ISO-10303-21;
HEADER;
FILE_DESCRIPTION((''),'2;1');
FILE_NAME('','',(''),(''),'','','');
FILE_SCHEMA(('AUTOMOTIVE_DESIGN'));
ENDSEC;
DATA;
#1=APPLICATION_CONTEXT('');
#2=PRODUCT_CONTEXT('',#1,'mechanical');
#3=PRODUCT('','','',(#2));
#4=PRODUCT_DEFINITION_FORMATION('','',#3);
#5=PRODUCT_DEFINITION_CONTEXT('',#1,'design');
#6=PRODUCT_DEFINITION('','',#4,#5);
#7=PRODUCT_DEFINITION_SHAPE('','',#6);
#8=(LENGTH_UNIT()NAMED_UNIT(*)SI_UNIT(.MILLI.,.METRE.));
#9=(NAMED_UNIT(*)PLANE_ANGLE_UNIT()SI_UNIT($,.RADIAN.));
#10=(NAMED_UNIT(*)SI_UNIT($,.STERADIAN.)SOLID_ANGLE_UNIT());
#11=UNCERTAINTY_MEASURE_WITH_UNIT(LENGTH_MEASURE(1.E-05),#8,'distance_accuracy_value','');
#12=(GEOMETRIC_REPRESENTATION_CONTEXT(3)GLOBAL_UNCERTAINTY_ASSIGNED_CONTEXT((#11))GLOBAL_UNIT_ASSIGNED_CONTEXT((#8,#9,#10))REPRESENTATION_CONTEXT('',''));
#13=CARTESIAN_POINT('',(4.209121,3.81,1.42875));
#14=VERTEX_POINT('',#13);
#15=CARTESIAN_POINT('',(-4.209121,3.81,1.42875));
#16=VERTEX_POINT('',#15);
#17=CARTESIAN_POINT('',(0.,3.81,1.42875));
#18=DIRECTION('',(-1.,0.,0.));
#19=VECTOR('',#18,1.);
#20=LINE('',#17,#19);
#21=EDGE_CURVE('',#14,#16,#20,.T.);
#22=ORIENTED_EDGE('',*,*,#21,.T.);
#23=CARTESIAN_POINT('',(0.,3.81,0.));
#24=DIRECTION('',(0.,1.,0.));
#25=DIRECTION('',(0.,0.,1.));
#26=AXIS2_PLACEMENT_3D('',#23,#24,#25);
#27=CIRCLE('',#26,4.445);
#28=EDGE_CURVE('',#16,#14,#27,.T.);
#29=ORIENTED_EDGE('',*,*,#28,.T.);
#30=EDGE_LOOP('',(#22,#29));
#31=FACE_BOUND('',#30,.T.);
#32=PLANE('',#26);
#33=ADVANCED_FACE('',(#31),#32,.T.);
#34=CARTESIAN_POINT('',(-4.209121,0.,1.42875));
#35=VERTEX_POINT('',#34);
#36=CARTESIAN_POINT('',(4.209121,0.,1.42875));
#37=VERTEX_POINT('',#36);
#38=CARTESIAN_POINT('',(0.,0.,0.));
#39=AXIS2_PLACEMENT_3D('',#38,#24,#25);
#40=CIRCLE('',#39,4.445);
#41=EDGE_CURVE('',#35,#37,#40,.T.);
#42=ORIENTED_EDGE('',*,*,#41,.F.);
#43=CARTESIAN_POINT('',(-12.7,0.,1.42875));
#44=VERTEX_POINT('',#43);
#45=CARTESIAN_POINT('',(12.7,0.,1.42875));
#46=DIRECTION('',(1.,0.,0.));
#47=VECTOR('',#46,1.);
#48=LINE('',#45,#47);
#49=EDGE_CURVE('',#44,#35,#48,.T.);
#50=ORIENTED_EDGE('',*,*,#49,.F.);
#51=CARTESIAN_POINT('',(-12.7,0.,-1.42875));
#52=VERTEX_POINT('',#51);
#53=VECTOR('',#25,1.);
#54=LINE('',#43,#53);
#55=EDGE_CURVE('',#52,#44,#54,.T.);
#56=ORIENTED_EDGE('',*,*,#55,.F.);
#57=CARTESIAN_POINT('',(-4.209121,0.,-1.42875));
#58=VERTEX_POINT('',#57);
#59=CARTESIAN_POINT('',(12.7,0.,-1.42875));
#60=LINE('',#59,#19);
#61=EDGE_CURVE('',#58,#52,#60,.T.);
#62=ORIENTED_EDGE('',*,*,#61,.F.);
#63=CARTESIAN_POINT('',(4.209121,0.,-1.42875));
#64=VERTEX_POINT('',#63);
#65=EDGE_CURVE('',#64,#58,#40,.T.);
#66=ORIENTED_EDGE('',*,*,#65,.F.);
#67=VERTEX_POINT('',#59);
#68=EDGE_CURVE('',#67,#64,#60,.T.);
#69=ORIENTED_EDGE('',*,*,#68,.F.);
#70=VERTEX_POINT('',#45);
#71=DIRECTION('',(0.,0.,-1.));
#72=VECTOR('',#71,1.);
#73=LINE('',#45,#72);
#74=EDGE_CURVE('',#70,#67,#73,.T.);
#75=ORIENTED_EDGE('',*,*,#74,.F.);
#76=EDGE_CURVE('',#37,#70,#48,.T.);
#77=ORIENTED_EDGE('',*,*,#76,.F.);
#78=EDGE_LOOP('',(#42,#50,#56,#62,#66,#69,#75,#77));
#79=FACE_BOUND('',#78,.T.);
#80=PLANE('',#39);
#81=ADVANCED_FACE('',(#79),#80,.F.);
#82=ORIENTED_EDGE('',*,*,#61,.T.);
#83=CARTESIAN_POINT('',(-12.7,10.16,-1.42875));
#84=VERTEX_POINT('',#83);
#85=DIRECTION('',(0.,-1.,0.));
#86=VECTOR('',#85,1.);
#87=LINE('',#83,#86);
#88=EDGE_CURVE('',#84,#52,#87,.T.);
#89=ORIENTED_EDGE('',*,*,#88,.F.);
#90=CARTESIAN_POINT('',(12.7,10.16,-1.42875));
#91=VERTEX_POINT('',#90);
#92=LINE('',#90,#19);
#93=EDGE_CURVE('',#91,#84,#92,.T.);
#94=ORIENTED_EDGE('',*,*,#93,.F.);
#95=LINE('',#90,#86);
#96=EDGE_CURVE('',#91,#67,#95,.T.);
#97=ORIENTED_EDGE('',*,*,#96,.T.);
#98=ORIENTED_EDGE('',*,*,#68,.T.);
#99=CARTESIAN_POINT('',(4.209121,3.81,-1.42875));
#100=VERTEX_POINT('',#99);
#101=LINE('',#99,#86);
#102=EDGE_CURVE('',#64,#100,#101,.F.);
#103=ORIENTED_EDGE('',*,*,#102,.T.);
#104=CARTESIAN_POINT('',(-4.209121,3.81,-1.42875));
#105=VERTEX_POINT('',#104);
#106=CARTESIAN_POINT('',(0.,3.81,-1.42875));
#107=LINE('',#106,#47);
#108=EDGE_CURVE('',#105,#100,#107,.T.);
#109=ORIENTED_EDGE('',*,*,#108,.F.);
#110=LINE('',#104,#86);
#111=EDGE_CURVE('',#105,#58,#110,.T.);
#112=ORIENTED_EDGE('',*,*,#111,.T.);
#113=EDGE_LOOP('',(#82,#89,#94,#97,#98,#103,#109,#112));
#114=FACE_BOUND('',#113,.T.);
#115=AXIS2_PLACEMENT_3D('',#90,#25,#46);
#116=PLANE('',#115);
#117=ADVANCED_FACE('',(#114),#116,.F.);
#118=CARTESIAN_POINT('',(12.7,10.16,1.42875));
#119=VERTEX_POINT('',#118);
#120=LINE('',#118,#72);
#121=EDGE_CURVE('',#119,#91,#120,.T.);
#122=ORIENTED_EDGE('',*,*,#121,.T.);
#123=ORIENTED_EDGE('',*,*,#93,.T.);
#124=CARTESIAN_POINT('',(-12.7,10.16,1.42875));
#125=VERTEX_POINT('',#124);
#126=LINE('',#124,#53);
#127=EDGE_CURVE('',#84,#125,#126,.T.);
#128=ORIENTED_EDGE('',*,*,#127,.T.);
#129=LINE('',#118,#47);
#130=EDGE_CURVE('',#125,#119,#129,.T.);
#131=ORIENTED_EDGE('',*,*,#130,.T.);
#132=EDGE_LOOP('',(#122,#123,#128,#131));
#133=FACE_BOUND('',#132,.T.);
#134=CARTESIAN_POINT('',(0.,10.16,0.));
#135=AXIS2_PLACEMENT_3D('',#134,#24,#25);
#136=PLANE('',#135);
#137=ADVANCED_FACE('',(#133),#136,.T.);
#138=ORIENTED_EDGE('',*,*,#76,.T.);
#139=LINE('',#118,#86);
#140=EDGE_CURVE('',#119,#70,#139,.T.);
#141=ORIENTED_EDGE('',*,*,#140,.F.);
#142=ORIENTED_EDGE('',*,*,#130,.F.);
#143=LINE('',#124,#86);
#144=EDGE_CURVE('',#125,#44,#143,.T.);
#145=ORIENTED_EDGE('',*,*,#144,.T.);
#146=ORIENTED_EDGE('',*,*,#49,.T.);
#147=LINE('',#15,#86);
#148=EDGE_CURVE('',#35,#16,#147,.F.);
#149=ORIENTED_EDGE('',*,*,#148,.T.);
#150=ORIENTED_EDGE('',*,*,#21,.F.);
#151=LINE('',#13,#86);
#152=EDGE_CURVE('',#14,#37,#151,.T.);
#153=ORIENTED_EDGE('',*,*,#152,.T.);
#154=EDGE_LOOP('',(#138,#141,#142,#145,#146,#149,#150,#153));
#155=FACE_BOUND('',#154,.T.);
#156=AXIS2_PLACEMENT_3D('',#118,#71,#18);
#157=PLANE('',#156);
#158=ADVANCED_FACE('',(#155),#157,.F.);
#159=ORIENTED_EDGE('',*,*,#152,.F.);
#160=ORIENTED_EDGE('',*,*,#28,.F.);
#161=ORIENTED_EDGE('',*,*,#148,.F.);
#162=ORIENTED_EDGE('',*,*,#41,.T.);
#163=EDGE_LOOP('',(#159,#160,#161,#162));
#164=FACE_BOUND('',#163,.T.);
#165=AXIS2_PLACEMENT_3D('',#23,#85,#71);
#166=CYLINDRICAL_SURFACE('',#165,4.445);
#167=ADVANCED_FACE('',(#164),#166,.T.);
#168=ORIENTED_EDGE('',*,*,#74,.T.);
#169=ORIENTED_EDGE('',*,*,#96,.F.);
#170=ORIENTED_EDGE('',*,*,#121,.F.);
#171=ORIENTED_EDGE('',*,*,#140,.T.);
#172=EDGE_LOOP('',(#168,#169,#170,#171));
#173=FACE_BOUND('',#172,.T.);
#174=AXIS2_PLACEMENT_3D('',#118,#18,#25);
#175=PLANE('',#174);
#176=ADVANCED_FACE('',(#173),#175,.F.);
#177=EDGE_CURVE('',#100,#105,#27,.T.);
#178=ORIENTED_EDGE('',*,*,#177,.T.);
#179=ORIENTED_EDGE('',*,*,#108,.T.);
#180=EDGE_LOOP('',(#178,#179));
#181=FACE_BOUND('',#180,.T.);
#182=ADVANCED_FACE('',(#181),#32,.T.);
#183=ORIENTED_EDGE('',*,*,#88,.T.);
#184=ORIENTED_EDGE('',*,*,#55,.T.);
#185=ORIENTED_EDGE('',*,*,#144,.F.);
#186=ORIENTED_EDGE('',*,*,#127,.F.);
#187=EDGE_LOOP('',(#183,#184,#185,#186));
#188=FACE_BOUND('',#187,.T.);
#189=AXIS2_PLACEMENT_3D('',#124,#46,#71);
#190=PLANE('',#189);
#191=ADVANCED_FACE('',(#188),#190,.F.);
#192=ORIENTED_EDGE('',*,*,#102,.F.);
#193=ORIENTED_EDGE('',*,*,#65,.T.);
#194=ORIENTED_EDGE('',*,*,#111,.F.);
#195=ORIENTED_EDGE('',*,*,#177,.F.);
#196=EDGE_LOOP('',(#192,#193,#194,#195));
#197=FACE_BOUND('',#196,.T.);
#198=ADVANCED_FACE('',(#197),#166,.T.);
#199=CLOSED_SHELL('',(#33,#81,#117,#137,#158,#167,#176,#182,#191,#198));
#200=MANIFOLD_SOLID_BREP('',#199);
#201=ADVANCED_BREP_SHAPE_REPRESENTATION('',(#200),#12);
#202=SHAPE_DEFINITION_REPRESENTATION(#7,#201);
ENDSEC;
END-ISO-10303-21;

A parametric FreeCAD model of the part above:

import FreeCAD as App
import Part
import Sketcher

V = App.Vector
Q = App.Units.Quantity

doc = App.newDocument("Part")
body = doc.addObject("PartDesign::Body", "Body")

sketch1 = doc.addObject("Sketcher::SketchObject", "Sketch")
body.addObject(sketch1)
sketch1.AttachmentSupport = (doc.XZ_Plane, [""])
sketch1.MapMode = "FlatFace"
sketch1.addGeometry(Part.Circle(V(0, 0, 0), V(0, 0, 1), 4.4), False)
sketch1.addConstraint([
    Sketcher.Constraint("Coincident", 0, 3, -1, 1),
    Sketcher.Constraint("Diameter", 0, Q("0.35 in")),
])
pad1 = doc.addObject("PartDesign::Pad", "Pad")
body.addObject(pad1)
pad1.Profile = sketch1
pad1.Length = Q("0.15 in")
pad1.Reversed = True

sketch2 = doc.addObject("Sketcher::SketchObject", "Sketch001")
body.addObject(sketch2)
sketch2.AttachmentSupport = (doc.XZ_Plane, [""])
sketch2.MapMode = "FlatFace"
sketch2.addGeometry([
    Part.LineSegment(V(-12.7, -1.4, 0), V(-12.7, 1.4, 0)),
    Part.LineSegment(V(-12.7, 1.4, 0), V(12.7, 1.4, 0)),
    Part.LineSegment(V(12.7, 1.4, 0), V(12.7, -1.4, 0)),
    Part.LineSegment(V(12.7, -1.4, 0), V(-12.7, -1.4, 0)),
], False)
sketch2.addConstraint([
    Sketcher.Constraint("Coincident", 0, 2, 1, 1),
    Sketcher.Constraint("Coincident", 1, 2, 2, 1),
    Sketcher.Constraint("Coincident", 2, 2, 3, 1),
    Sketcher.Constraint("Coincident", 3, 2, 0, 1),
    Sketcher.Constraint("Vertical", 0),
    Sketcher.Constraint("Horizontal", 1),
    Sketcher.Constraint("Vertical", 2),
    Sketcher.Constraint("Horizontal", 3),
    Sketcher.Constraint("Symmetric", 0, 2, 2, 2, -1, 1),
    Sketcher.Constraint("DistanceX", 1, 1, 1, 2, Q("1 in")),
    Sketcher.Constraint("DistanceY", 0, 1, 0, 2, Q("0.1125 in")),
])
pad2 = doc.addObject("PartDesign::Pad", "Pad001")
body.addObject(pad2)
pad2.Profile = sketch2
pad2.Length = Q("0.4 in")
pad2.Reversed = True

doc.recompute()
